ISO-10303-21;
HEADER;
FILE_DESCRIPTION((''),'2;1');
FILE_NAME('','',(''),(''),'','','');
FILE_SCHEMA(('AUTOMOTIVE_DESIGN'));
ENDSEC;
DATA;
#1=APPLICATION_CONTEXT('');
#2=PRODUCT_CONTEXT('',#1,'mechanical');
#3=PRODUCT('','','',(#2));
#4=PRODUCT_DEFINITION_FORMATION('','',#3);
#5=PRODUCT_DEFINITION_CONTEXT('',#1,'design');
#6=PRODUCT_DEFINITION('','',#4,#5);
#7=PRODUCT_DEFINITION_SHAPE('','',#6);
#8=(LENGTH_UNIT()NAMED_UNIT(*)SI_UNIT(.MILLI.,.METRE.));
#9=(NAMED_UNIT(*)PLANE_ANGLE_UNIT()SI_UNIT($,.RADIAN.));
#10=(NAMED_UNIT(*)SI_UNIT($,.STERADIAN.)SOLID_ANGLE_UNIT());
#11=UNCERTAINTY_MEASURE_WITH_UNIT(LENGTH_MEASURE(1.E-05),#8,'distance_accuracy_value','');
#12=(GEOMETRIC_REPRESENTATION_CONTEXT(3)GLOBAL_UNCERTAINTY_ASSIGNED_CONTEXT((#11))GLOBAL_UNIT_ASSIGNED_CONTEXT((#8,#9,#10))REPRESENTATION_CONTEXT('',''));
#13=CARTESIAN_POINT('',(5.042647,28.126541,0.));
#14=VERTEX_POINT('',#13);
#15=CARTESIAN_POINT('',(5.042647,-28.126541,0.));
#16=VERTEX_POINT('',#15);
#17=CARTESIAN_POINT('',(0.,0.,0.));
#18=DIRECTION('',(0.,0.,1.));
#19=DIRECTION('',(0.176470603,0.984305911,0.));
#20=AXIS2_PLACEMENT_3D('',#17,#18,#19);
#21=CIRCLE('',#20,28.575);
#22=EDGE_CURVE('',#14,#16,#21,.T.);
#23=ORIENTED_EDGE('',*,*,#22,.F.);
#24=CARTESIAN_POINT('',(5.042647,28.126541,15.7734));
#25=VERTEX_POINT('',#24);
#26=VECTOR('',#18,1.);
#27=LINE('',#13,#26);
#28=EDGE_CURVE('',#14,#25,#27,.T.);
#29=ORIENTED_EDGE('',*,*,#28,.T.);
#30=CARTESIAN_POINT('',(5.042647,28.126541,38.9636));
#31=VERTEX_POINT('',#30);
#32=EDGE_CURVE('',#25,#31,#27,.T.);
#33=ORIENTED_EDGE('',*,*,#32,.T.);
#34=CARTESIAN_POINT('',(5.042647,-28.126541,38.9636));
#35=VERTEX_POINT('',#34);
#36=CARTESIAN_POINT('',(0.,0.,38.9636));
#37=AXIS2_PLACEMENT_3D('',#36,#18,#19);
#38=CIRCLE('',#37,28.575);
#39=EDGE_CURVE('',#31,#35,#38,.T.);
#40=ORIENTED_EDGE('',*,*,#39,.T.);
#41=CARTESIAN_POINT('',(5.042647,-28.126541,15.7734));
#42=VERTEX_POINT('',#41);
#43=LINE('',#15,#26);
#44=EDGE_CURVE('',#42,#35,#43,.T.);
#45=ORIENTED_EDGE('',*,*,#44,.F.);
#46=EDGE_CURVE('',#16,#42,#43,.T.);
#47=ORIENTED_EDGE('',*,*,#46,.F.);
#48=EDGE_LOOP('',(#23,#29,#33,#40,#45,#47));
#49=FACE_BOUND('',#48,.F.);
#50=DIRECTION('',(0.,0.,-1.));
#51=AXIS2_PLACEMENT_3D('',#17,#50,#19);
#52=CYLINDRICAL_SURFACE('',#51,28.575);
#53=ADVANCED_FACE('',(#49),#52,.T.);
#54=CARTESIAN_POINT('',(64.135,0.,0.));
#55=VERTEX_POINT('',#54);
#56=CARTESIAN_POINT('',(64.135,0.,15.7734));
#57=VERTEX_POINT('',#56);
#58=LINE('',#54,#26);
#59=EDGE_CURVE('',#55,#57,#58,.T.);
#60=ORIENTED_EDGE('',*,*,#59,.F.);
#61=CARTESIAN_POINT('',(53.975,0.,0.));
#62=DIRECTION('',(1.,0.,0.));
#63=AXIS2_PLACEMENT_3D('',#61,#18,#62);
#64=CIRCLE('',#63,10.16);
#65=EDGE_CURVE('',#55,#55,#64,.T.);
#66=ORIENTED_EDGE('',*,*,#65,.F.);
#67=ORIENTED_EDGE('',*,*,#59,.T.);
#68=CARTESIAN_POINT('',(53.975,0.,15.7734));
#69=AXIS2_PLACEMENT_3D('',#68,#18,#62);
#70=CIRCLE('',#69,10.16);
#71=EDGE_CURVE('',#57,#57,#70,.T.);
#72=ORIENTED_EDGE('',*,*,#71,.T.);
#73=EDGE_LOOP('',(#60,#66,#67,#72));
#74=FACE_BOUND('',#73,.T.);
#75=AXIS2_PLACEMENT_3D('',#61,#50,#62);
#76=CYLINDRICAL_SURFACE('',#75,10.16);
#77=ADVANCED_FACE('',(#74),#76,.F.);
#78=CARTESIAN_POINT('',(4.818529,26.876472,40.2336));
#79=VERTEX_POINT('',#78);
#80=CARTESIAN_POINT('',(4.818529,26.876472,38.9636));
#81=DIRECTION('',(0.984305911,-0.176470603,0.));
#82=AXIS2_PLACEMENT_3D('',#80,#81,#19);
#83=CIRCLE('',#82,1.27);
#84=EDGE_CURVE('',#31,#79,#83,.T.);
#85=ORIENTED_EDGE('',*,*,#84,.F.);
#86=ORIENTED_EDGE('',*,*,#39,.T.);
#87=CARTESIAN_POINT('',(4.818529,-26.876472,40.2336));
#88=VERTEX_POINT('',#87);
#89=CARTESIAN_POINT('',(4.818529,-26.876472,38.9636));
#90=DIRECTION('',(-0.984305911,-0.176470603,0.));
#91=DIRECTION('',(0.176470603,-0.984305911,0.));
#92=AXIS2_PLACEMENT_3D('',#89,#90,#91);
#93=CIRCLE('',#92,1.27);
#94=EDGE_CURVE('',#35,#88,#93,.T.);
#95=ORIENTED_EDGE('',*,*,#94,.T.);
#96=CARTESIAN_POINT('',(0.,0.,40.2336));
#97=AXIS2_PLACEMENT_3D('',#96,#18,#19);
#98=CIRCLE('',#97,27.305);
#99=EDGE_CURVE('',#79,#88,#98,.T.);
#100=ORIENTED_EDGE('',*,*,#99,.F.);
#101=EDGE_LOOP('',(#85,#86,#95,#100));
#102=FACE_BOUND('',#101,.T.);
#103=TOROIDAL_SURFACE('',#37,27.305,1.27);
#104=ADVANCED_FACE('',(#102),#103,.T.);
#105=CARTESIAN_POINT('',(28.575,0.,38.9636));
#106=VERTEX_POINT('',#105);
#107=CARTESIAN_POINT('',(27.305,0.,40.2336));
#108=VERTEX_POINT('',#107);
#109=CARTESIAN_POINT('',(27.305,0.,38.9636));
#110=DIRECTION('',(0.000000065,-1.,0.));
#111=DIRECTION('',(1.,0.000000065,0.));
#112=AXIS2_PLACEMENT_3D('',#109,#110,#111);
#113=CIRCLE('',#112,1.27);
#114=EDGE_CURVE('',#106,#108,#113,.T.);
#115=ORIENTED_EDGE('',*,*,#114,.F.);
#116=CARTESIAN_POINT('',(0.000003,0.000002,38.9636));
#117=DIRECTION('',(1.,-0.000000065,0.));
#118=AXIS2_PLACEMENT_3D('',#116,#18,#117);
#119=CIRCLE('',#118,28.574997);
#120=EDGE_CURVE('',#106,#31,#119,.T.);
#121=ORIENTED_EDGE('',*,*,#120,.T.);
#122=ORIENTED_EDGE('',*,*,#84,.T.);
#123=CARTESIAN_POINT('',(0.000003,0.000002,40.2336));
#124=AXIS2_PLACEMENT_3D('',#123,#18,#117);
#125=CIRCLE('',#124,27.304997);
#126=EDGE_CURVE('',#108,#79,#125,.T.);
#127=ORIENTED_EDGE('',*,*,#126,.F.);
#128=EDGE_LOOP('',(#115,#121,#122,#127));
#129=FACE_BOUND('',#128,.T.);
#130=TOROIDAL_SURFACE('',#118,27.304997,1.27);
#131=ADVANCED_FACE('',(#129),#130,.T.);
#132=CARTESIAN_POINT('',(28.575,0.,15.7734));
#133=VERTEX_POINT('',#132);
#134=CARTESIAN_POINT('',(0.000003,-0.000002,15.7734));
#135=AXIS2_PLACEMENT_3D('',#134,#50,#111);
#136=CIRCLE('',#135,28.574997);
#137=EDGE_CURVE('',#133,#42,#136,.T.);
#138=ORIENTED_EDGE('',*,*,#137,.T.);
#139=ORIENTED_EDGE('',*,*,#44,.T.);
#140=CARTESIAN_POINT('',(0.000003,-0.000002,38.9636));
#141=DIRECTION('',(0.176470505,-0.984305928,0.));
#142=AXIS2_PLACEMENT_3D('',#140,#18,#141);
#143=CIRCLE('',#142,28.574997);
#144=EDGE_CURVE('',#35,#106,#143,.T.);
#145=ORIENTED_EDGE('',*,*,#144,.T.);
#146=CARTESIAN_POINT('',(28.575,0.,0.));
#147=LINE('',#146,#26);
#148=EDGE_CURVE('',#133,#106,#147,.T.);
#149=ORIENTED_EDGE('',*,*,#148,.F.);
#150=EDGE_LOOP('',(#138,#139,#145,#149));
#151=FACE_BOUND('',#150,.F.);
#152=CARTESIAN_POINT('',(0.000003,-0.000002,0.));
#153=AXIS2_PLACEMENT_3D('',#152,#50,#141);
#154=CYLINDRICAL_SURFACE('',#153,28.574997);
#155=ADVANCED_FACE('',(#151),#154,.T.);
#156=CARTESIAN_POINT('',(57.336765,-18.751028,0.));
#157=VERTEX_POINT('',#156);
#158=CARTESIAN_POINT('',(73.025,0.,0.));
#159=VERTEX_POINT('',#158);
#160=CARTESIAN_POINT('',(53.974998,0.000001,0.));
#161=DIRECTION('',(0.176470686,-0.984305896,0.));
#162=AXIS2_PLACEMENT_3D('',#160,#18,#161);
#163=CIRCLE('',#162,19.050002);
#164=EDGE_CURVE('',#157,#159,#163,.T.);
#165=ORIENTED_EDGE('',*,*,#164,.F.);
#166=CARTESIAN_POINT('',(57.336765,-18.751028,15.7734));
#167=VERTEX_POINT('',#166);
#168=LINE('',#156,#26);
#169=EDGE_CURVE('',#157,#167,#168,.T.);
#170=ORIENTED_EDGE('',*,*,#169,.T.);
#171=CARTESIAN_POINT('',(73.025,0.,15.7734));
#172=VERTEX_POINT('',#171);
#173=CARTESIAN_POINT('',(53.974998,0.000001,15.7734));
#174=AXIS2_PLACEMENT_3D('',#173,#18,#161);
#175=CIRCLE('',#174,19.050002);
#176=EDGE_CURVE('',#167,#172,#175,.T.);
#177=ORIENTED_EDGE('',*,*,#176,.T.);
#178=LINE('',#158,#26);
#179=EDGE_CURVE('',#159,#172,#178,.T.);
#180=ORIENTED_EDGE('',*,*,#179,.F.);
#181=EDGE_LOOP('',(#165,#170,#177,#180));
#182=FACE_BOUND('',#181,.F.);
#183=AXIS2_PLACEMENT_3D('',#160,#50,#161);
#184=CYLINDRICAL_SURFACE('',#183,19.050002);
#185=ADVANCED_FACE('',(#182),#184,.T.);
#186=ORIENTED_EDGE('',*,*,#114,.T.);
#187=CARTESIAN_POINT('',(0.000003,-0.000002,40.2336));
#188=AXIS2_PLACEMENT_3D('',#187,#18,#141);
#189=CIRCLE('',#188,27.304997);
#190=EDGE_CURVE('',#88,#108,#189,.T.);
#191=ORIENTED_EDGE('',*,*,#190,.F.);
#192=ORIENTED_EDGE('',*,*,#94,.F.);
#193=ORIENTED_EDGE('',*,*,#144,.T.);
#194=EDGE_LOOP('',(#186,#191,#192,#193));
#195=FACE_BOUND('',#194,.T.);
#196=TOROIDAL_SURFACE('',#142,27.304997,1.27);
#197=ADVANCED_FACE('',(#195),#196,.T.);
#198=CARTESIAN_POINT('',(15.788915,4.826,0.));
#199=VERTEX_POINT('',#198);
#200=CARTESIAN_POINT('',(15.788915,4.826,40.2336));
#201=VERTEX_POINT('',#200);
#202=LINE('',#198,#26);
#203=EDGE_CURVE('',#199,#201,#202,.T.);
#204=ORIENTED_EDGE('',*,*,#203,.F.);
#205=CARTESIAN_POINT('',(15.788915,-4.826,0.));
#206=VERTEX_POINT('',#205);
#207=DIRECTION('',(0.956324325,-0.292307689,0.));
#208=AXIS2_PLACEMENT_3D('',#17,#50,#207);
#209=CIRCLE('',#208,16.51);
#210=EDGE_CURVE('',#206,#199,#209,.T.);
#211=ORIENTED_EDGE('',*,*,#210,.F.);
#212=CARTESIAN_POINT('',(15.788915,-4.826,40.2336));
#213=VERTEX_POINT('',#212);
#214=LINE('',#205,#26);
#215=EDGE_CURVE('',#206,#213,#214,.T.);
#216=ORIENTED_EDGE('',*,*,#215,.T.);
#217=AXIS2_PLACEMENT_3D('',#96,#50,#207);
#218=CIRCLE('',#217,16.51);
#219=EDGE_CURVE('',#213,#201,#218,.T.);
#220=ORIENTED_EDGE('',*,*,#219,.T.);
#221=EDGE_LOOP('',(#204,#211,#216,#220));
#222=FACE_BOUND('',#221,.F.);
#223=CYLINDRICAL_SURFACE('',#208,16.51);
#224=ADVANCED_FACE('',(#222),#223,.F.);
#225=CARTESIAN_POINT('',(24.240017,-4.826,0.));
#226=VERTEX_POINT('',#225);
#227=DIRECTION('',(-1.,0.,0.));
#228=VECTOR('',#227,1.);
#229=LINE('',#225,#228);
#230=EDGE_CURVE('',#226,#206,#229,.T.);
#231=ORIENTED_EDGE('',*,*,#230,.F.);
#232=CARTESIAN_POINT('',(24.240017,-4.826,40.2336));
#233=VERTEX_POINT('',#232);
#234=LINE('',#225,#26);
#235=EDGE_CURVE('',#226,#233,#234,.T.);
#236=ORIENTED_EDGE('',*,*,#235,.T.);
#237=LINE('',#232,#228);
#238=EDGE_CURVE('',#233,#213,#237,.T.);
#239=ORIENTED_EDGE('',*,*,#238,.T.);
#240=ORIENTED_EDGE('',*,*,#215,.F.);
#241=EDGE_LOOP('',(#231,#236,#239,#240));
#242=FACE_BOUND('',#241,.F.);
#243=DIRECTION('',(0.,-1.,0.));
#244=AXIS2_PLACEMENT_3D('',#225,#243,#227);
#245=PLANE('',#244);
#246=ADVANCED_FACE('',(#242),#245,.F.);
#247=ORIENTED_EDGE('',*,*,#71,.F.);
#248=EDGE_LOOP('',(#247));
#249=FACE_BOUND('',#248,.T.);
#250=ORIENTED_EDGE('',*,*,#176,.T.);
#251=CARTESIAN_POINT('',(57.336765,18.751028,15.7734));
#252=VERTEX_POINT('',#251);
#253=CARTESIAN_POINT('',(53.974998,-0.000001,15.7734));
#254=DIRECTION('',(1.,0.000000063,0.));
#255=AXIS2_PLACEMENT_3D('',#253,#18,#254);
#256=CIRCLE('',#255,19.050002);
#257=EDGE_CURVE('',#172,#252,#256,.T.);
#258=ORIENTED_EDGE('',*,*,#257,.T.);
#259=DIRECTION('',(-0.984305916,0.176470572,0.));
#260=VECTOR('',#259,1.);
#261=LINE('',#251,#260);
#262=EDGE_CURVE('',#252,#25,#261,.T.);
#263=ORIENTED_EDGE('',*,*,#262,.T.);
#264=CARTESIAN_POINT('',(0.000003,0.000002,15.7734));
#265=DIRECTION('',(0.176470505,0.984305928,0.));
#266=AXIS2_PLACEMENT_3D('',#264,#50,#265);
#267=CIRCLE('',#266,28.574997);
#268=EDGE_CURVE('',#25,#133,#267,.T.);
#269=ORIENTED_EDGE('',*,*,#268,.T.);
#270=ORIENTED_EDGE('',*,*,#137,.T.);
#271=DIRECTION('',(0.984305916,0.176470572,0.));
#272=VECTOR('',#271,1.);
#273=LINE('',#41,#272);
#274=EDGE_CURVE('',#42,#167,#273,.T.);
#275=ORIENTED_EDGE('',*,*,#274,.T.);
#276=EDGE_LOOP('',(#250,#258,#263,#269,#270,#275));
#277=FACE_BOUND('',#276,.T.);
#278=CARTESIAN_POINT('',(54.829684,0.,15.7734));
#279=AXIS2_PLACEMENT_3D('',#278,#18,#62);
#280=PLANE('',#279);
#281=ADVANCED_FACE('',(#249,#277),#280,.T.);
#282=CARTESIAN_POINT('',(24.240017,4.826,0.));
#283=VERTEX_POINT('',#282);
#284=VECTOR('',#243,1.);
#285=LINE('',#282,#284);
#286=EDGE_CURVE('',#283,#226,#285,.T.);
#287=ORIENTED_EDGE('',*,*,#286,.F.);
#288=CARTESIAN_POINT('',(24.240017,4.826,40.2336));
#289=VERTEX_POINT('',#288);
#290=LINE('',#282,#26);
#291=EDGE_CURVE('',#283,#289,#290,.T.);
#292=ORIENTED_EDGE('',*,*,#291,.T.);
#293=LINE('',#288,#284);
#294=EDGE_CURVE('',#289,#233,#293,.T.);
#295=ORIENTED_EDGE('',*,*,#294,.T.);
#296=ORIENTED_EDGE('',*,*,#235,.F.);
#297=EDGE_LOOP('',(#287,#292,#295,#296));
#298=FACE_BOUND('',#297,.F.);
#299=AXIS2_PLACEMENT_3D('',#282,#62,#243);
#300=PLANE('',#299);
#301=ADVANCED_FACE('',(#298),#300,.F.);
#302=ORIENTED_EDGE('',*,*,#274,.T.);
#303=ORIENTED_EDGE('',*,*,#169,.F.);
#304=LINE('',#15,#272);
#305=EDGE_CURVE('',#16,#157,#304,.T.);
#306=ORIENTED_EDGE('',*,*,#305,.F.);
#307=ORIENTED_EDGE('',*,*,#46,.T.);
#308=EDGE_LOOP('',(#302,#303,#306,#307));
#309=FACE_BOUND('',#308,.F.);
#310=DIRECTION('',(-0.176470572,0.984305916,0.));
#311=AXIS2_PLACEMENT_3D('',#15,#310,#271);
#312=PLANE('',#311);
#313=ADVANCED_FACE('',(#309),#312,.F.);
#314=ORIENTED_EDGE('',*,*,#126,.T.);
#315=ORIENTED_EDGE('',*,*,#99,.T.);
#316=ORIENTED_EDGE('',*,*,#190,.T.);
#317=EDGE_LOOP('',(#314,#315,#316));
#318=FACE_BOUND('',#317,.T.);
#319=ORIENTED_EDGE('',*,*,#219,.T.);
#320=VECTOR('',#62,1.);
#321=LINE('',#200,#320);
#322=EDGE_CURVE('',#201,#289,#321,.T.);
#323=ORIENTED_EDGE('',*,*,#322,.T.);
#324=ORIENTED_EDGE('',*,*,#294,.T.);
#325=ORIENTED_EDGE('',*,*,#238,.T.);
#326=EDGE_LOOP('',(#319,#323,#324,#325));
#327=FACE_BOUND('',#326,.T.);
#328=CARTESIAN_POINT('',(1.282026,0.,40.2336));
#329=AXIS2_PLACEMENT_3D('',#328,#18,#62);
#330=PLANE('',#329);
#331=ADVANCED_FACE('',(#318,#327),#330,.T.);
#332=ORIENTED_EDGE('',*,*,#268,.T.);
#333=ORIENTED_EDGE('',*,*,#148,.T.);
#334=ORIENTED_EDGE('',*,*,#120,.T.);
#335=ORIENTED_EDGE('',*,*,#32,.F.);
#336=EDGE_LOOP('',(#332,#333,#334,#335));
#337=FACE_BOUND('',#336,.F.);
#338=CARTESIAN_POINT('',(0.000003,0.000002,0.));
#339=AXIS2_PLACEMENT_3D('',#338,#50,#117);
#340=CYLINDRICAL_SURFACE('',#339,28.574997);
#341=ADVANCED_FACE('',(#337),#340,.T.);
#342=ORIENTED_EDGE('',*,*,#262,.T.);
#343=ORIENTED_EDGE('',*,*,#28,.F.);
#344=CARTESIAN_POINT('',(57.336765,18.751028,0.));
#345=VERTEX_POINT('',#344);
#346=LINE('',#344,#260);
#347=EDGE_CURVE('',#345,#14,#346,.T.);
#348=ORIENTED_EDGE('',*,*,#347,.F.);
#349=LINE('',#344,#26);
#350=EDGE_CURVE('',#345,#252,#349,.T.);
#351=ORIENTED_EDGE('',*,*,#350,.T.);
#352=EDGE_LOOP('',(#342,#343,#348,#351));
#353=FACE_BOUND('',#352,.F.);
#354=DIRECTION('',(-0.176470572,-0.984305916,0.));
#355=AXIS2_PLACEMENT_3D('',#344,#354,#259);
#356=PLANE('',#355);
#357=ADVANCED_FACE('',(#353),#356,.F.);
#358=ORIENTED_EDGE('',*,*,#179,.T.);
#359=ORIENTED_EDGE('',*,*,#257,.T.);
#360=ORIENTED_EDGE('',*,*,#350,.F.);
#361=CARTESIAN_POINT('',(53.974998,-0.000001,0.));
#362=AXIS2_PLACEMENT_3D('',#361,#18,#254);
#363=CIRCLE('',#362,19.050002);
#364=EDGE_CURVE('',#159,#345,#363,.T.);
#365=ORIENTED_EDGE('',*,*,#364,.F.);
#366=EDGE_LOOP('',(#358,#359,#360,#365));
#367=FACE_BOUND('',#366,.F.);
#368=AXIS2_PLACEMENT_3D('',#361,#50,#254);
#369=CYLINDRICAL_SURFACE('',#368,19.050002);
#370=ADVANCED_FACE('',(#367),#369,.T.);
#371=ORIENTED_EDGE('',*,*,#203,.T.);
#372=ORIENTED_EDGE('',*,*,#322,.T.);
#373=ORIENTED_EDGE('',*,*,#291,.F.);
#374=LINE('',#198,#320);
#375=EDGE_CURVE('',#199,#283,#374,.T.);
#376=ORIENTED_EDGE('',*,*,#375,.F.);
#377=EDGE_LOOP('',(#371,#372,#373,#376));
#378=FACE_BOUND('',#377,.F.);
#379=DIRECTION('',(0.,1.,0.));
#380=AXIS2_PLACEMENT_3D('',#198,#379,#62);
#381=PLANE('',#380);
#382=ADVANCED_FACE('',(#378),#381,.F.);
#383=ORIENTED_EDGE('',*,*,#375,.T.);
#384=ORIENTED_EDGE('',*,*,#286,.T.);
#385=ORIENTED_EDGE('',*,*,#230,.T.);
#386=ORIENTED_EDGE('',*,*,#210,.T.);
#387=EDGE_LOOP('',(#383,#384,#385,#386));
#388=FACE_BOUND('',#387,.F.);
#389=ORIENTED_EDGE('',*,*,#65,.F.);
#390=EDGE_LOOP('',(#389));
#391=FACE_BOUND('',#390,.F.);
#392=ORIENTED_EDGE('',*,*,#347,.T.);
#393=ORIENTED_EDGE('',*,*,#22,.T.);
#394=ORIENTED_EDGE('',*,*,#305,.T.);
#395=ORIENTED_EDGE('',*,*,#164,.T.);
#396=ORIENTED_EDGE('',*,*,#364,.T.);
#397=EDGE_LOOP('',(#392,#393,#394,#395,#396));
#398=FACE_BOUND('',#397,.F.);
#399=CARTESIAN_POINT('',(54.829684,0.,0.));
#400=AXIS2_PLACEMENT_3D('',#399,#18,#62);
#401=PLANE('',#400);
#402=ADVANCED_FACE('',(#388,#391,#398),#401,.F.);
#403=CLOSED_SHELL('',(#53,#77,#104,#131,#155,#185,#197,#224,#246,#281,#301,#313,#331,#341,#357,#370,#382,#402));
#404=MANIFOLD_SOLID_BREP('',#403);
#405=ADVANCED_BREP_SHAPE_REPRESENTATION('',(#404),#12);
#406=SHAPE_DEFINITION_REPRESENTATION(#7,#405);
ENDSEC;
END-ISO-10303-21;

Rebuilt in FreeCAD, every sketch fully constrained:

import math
import FreeCAD as App
import Part
import Sketcher
from FreeCAD import Vector
Q = App.Units.Quantity


def edges_at(feature, points):
    """Names of the edges that pass closest to the given points."""
    edges = feature.Shape.Edges
    near = lambda p: min(range(len(edges)), key=lambda i: edges[i].distToShape(Part.Vertex(*p))[0])
    return sorted({f"Edge{near(p) + 1}" for p in points})

doc = App.newDocument("Part")
body = doc.addObject("PartDesign::Body", "Body")

sketch1 = body.newObject("Sketcher::SketchObject", "Sketch")
sketch1.AttachmentSupport = (doc.getObject("XY_Plane"), [""])
sketch1.MapMode = "FlatFace"
sketch1.addGeometry([
    Part.ArcOfCircle(Part.Circle(Vector(0.000003, -0.000002, 0), Vector(0, 0, 1), 28.574997), math.radians(-79.835756), math.radians(0.000004)),
    Part.ArcOfCircle(Part.Circle(Vector(0.000003, 0.000002, 0), Vector(0, 0, 1), 28.574997), math.radians(-0.000004), math.radians(79.835756)),
    Part.ArcOfCircle(Part.Circle(Vector(0, 0, 0), Vector(0, 0, 1), 28.575), math.radians(79.835751), math.radians(280.164249)),
    Part.LineSegment(Vector(24.240017, -4.826, 0), Vector(15.788915, -4.826, 0)),
    Part.ArcOfCircle(Part.Circle(Vector(0, 0, 0), Vector(0, 0, 1), 16.51), math.radians(16.996165), math.radians(343.003835)),
    Part.LineSegment(Vector(15.788915, 4.826, 0), Vector(24.240017, 4.826, 0)),
    Part.LineSegment(Vector(24.240017, 4.826, 0), Vector(24.240017, -4.826, 0)),
], False)
sketch1.addConstraint([
    Sketcher.Constraint("Tangent", 0, 2, 1, 1),
    Sketcher.Constraint("Tangent", 1, 2, 2, 1),
    Sketcher.Constraint("Tangent", 2, 2, 0, 1),
    Sketcher.Constraint("Coincident", 3, 2, 4, 2),
    Sketcher.Constraint("Coincident", 4, 1, 5, 1),
    Sketcher.Constraint("Coincident", 5, 2, 6, 1),
    Sketcher.Constraint("Coincident", 6, 2, 3, 1),
    Sketcher.Constraint("Horizontal", 3),
    Sketcher.Constraint("Horizontal", 5),
    Sketcher.Constraint("Vertical", 6),
    Sketcher.Constraint("Coincident", 0, 3, -1, 1),
    Sketcher.Constraint("Coincident", 4, 3, -1, 1),
    Sketcher.Constraint("PointOnObject", 0, 2, -1),
    Sketcher.Constraint("Vertical", 1, 2, 2, 2),
    Sketcher.Constraint("Vertical", 3, 2, 4, 1),
    Sketcher.Constraint("Radius", 4, Q("0.65 in")),
    Sketcher.Constraint("Radius", 0, Q("1.1249999 in")),
    Sketcher.Constraint("DistanceY", 6, 2, 6, 1, Q("0.38 in")),
    Sketcher.Constraint("DistanceX", 3, 2, 3, 1, Q("8.451102 mm")),
    Sketcher.Constraint("DistanceY", -1, 1, 1, 2, Q("28.126541 mm")),
])
pad1 = body.newObject("PartDesign::Pad", "Pad")
pad1.Profile = sketch1
pad1.Length = Q("1.584 in")

sketch2 = body.newObject("Sketcher::SketchObject", "Sketch001")
sketch2.AttachmentSupport = (doc.getObject("XY_Plane"), [""])
sketch2.MapMode = "FlatFace"
sketch2.addGeometry([
    Part.ArcOfCircle(Part.Circle(Vector(53.974998, -0.000001, 0), Vector(0, 0, 1), 19.050002), math.radians(0.000004), math.radians(79.835746)),
    Part.LineSegment(Vector(57.336765, 18.751028, 0), Vector(5.042647, 28.126541, 0)),
    Part.ArcOfCircle(Part.Circle(Vector(0.000003, 0.000002, 0), Vector(0, 0, 1), 28.574997), math.radians(-0.000004), math.radians(79.835756)),
    Part.ArcOfCircle(Part.Circle(Vector(0.000003, -0.000002, 0), Vector(0, 0, 1), 28.574997), math.radians(-79.835756), math.radians(0.000004)),
    Part.LineSegment(Vector(5.042647, -28.126541, 0), Vector(57.336765, -18.751028, 0)),
    Part.ArcOfCircle(Part.Circle(Vector(53.974998, 0.000001, 0), Vector(0, 0, 1), 19.050002), math.radians(-79.835746), math.radians(-0.000004)),
    Part.Circle(Vector(53.975, 0, 0), Vector(0, 0, 1), 10.16),
], False)
sketch2.addConstraint([
    Sketcher.Constraint("Tangent", 0, 2, 1, 1),
    Sketcher.Constraint("Tangent", 1, 2, 2, 2),
    Sketcher.Constraint("Tangent", 2, 1, 3, 2),
    Sketcher.Constraint("Tangent", 3, 1, 4, 1),
    Sketcher.Constraint("Tangent", 4, 2, 5, 1),
    Sketcher.Constraint("Tangent", 5, 2, 0, 1),
    Sketcher.Constraint("Coincident", 2, 3, -1, 1),
    Sketcher.Constraint("Coincident", 6, 3, 0, 3),
    Sketcher.Constraint("Equal", 2, 3),
    Sketcher.Constraint("Equal", 0, 5),
    Sketcher.Constraint("PointOnObject", 0, 3, -1),
    Sketcher.Constraint("PointOnObject", 2, 1, -1),
    Sketcher.Constraint("PointOnObject", 5, 2, -1),
    Sketcher.Constraint("Diameter", 6, Q("0.8 in")),
    Sketcher.Constraint("Radius", 0, Q("0.7500001 in")),
    Sketcher.Constraint("Radius", 2, Q("1.1249999 in")),
    Sketcher.Constraint("DistanceX", 2, 1, 0, 3, Q("0.9999999 in")),
])
pad2 = body.newObject("PartDesign::Pad", "Pad001")
pad2.Profile = sketch2
pad2.Length = Q("0.621 in")
doc.recompute()

fillet = body.newObject("PartDesign::Fillet", "Fillet")
fillet.Base = (pad2, edges_at(pad2, [(-28.575, 0, 40.234)]))
fillet.Radius = Q("0.05 in")

doc.recompute()
